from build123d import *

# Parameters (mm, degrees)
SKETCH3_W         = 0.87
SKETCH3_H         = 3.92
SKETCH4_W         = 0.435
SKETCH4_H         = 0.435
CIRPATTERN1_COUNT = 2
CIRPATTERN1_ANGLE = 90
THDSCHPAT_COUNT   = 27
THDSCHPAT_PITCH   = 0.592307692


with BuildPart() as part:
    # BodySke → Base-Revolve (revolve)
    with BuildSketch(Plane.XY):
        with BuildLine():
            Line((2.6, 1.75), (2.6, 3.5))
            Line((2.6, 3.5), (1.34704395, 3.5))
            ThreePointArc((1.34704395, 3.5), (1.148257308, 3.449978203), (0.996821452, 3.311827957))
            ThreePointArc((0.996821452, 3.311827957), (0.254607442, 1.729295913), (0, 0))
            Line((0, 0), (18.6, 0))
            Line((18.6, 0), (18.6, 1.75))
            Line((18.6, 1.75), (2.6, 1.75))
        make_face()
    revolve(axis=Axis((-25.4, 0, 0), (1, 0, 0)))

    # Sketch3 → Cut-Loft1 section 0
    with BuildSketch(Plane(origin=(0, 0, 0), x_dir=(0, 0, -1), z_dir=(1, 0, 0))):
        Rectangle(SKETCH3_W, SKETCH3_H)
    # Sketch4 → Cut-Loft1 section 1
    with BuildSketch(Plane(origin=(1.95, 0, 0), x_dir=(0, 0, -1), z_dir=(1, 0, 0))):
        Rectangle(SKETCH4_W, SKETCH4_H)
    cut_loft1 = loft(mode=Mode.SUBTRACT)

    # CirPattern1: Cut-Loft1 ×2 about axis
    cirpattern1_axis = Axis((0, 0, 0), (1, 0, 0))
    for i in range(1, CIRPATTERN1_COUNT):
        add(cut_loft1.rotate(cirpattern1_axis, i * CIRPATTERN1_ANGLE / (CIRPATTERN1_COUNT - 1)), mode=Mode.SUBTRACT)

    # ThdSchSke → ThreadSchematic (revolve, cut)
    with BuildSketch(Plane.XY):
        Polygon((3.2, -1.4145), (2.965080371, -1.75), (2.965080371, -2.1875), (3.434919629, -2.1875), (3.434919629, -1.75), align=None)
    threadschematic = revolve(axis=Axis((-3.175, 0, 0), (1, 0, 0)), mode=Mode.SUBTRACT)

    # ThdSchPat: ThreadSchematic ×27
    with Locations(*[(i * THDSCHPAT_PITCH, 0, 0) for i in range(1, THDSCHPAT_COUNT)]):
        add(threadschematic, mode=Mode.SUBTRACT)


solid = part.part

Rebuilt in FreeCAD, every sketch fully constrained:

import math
import FreeCAD as App
import Part
import Sketcher
from FreeCAD import Vector
Q = App.Units.Quantity


def add_polygon(sketch, points):
    """Adds a closed chain of lines whose ends are joined by coincident constraints."""
    first, n = sketch.GeometryCount, len(points)
    for a, b in zip(points, points[1:] + points[:1]):
        sketch.addGeometry(Part.LineSegment(App.Vector(*a, 0), App.Vector(*b, 0)), False)
    for i in range(n):
        sketch.addConstraint(Sketcher.Constraint("Coincident", first + i, 2, first + (i + 1) % n, 1))

doc = App.newDocument("Part")
body = doc.addObject("PartDesign::Body", "Body")

sketch1 = body.newObject("Sketcher::SketchObject", "Sketch")
sketch1.AttachmentSupport = (doc.getObject("XY_Plane"), [""])
sketch1.MapMode = "FlatFace"
sketch1.addGeometry([
    Part.LineSegment(Vector(2.6, 1.75, 0), Vector(2.6, 3.5, 0)),
    Part.LineSegment(Vector(2.6, 3.5, 0), Vector(1.35, 3.5, 0)),
    Part.ArcOfCircle(Part.Circle(Vector(1.35, 3.08, 0), Vector(0, 0, 1), 0.42), math.radians(90), math.radians(146)),
    Part.ArcOfCircle(Part.Circle(Vector(6, 0, 0), Vector(0, 0, 1), 6), math.radians(146), math.radians(180)),
    Part.LineSegment(Vector(0, 0, 0), Vector(18.6, 0, 0)),
    Part.LineSegment(Vector(18.6, 0, 0), Vector(18.6, 1.75, 0)),
    Part.LineSegment(Vector(18.6, 1.75, 0), Vector(2.6, 1.75, 0)),
], False)
sketch1.addConstraint([
    Sketcher.Constraint("Coincident", 0, 2, 1, 1),
    Sketcher.Constraint("Tangent", 1, 2, 2, 1),
    Sketcher.Constraint("Tangent", 2, 2, 3, 1),
    Sketcher.Constraint("Coincident", 3, 2, 4, 1),
    Sketcher.Constraint("Coincident", 4, 2, 5, 1),
    Sketcher.Constraint("Coincident", 5, 2, 6, 1),
    Sketcher.Constraint("Coincident", 6, 2, 0, 1),
    Sketcher.Constraint("Vertical", 0),
    Sketcher.Constraint("Horizontal", 1),
    Sketcher.Constraint("Horizontal", 4),
    Sketcher.Constraint("Vertical", 5),
    Sketcher.Constraint("Horizontal", 6),
    Sketcher.Constraint("Coincident", 3, 2, -1, 1),
    Sketcher.Constraint("PointOnObject", 3, 3, -1),
    Sketcher.Constraint("Equal", 0, 5),
    Sketcher.Constraint("Radius", 3, Q("6 mm")),
    Sketcher.Constraint("DistanceX", 6, 2, 6, 1, Q("16 mm")),
    Sketcher.Constraint("Radius", 2, Q("0.42 mm")),
    Sketcher.Constraint("DistanceX", 4, 1, 4, 2, Q("18.6 mm")),
    Sketcher.Constraint("DistanceY", 0, 1, 0, 2, Q("1.75 mm")),
])
revolution = body.newObject("PartDesign::Revolution", "Revolution")
revolution.Profile = sketch1
revolution.ReferenceAxis = (sketch1, ["H_Axis"])
revolution.Angle = 360

sketch2 = body.newObject("Sketcher::SketchObject", "Sketch001")
sketch2.AttachmentSupport = (doc.getObject("YZ_Plane"), [""])
sketch2.MapMode = "FlatFace"
add_polygon(sketch2, [(2, 0.4), (-2, 0.4), (-2, -0.4), (2, -0.4)])
sketch2.addConstraint([
    Sketcher.Constraint("Horizontal", 0),
    Sketcher.Constraint("Vertical", 1),
    Sketcher.Constraint("Horizontal", 2),
    Sketcher.Constraint("Vertical", 3),
    Sketcher.Constraint("Symmetric", 0, 2, 2, 2, -1, 1),
    Sketcher.Constraint("DistanceX", 0, 2, 0, 1, Q("3.92 mm")),
    Sketcher.Constraint("DistanceY", 1, 2, 1, 1, Q("0.87 mm")),
])

sketch3 = body.newObject("Sketcher::SketchObject", "Sketch002")
sketch3.AttachmentSupport = (doc.getObject("YZ_Plane"), [""])
sketch3.MapMode = "FlatFace"
sketch3.AttachmentOffset = App.Placement(Vector(0, 0, 1.95), App.Rotation())
add_polygon(sketch3, [(0.22, 0.22), (-0.22, 0.22), (-0.22, -0.22), (0.22, -0.22)])
sketch3.addConstraint([
    Sketcher.Constraint("Horizontal", 0),
    Sketcher.Constraint("Vertical", 1),
    Sketcher.Constraint("Horizontal", 2),
    Sketcher.Constraint("Vertical", 3),
    Sketcher.Constraint("Symmetric", 0, 2, 2, 2, -1, 1),
    Sketcher.Constraint("Equal", 2, 1),
    Sketcher.Constraint("DistanceX", 0, 2, 0, 1, Q("0.435 mm")),
])

subtractiveloft = body.newObject("PartDesign::SubtractiveLoft", "SubtractiveLoft")
subtractiveloft.Profile = sketch2
subtractiveloft.Sections = [sketch3]
doc.recompute()

polarpattern = body.newObject("PartDesign::PolarPattern", "PolarPattern")
polarpattern.Originals = [subtractiveloft]
polarpattern.Axis = (doc.getObject("X_Axis"), [""])
polarpattern.Angle = 90
polarpattern.Occurrences = 2
body.Tip = polarpattern

sketch4 = body.newObject("Sketcher::SketchObject", "Sketch003")
sketch4.AttachmentSupport = (doc.getObject("XY_Plane"), [""])
sketch4.MapMode = "FlatFace"
add_polygon(sketch4, [(3.2, -1.41), (2.97, -1.75), (2.97, -2.19), (3.43, -2.19), (3.43, -1.75)])
sketch4.addConstraint([
    Sketcher.Constraint("Vertical", 1),
    Sketcher.Constraint("Horizontal", 2),
    Sketcher.Constraint("Vertical", 3),
    Sketcher.Constraint("Horizontal", 0, 2, 3, 2),
    Sketcher.Constraint("Equal", 0, 4),
    Sketcher.Constraint("Angle", 0, Q("-125 deg")),
    Sketcher.Constraint("DistanceX", -1, 1, 4, 2, Q("3.2 mm")),
    Sketcher.Constraint("DistanceY", 0, 2, -1, 1, Q("1.75 mm")),
    Sketcher.Constraint("DistanceY", 1, 2, 1, 1, Q("0.4375 mm")),
    Sketcher.Constraint("DistanceY", 2, 2, 4, 2, Q("0.773 mm")),
])
groove = body.newObject("PartDesign::Groove", "Groove")
groove.Profile = sketch4
groove.ReferenceAxis = (sketch4, ["H_Axis"])
groove.Angle = 360
doc.recompute()

linearpattern = body.newObject("PartDesign::LinearPattern", "LinearPattern")
linearpattern.Originals = [groove]
linearpattern.Direction = (doc.getObject("X_Axis"), [""])
linearpattern.Mode = "offset"
linearpattern.Offset = 0.592308
linearpattern.Occurrences = 27
body.Tip = linearpattern

doc.recompute()
